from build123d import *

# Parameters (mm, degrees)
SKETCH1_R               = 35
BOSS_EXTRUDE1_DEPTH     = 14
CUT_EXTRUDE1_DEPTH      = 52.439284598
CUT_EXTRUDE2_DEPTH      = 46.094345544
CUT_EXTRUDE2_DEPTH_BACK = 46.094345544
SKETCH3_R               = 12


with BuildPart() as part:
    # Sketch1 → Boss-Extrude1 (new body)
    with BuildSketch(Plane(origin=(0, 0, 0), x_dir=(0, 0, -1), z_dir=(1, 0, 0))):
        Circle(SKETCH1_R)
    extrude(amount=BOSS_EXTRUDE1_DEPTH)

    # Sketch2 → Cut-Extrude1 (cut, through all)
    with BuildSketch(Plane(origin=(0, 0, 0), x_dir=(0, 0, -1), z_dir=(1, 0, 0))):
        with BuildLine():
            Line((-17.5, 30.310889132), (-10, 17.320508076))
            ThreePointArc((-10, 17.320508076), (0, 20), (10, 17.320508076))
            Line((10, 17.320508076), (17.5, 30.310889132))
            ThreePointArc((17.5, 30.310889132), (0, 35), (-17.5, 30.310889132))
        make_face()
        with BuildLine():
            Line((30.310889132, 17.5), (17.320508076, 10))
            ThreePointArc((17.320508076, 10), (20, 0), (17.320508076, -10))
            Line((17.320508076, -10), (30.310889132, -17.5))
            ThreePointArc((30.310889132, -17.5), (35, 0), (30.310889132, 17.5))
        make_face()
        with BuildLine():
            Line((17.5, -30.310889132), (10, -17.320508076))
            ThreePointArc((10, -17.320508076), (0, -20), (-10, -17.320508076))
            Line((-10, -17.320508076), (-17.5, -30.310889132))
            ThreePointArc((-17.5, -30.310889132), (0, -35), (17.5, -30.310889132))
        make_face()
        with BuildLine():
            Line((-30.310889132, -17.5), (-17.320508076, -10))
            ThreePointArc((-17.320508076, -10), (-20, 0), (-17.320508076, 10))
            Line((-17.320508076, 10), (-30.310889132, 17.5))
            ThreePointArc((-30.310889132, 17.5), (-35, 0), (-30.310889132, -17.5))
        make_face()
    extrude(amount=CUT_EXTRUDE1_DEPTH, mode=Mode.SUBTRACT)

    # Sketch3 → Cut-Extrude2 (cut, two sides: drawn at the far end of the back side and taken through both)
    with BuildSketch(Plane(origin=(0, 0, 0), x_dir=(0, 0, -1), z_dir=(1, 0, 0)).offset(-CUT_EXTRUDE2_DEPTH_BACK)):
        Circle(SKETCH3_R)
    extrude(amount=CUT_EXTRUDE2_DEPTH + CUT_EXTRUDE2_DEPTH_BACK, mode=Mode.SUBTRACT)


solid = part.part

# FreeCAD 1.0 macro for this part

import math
import FreeCAD as App
import Part
import Sketcher
from FreeCAD import Vector
Q = App.Units.Quantity

doc = App.newDocument("Part")
body = doc.addObject("PartDesign::Body", "Body")

# Sketch on YZ plane
sketch1 = doc.addObject("Sketcher::SketchObject", "Sketch")
body.addObject(sketch1)
sketch1.AttachmentSupport = (doc.YZ_Plane, [""])
sketch1.MapMode = "FlatFace"
sketch1.addGeometry(Part.Circle(Vector(0, 0, 0), Vector(0, 0, 1), 35), False)
sketch1.addConstraint(Sketcher.Constraint("Coincident", 0, 3, -1, 1))
sketch1.addConstraint(Sketcher.Constraint("Diameter", 0, 70.0))
pad1 = doc.addObject("PartDesign::Pad", "Pad")
body.addObject(pad1)
pad1.Profile = sketch1
pad1.Length = 14

# Sketch on YZ plane
sketch2 = doc.addObject("Sketcher::SketchObject", "Sketch001")
body.addObject(sketch2)
sketch2.AttachmentSupport = (doc.YZ_Plane, [""])
sketch2.MapMode = "FlatFace"
sketch2.addGeometry(Part.LineSegment(Vector(30.310889, 17.5, 0), Vector(17.320508, 10, 0)), False)
sketch2.addGeometry(Part.ArcOfCircle(Part.Circle(Vector(0, 0, 0), Vector(0, 0, 1), 20), math.radians(-30), math.radians(30)), False)
sketch2.addGeometry(Part.LineSegment(Vector(17.320508, -10, 0), Vector(30.310889, -17.5, 0)), False)
sketch2.addGeometry(Part.ArcOfCircle(Part.Circle(Vector(0, 0, 0), Vector(0, 0, 1), 35), math.radians(-30), math.radians(30)), False)
sketch2.addGeometry(Part.LineSegment(Vector(17.5, -30.310889, 0), Vector(10, -17.320508, 0)), False)
sketch2.addGeometry(Part.ArcOfCircle(Part.Circle(Vector(0, 0, 0), Vector(0, 0, 1), 20), math.radians(-120), math.radians(-60)), False)
sketch2.addGeometry(Part.LineSegment(Vector(-10, -17.320508, 0), Vector(-17.5, -30.310889, 0)), False)
sketch2.addGeometry(Part.ArcOfCircle(Part.Circle(Vector(0, 0, 0), Vector(0, 0, 1), 35), math.radians(-120), math.radians(-60)), False)
sketch2.addGeometry(Part.LineSegment(Vector(-30.310889, -17.5, 0), Vector(-17.320508, -10, 0)), False)
sketch2.addGeometry(Part.ArcOfCircle(Part.Circle(Vector(0, 0, 0), Vector(0, 0, 1), 20), math.radians(150), math.radians(210)), False)
sketch2.addGeometry(Part.LineSegment(Vector(-17.320508, 10, 0), Vector(-30.310889, 17.5, 0)), False)
sketch2.addGeometry(Part.ArcOfCircle(Part.Circle(Vector(0, 0, 0), Vector(0, 0, 1), 35), math.radians(150), math.radians(210)), False)
sketch2.addGeometry(Part.LineSegment(Vector(-17.5, 30.310889, 0), Vector(-10, 17.320508, 0)), False)
sketch2.addGeometry(Part.ArcOfCircle(Part.Circle(Vector(0, 0, 0), Vector(0, 0, 1), 20), math.radians(60), math.radians(120)), False)
sketch2.addGeometry(Part.LineSegment(Vector(10, 17.320508, 0), Vector(17.5, 30.310889, 0)), False)
sketch2.addGeometry(Part.ArcOfCircle(Part.Circle(Vector(0, 0, 0), Vector(0, 0, 1), 35), math.radians(60), math.radians(120)), False)
sketch2.addConstraint(Sketcher.Constraint("Coincident", 0, 2, 1, 2))
sketch2.addConstraint(Sketcher.Constraint("Coincident", 1, 1, 2, 1))
sketch2.addConstraint(Sketcher.Constraint("Coincident", 2, 2, 3, 1))
sketch2.addConstraint(Sketcher.Constraint("Coincident", 3, 2, 0, 1))
sketch2.addConstraint(Sketcher.Constraint("Coincident", 4, 2, 5, 2))
sketch2.addConstraint(Sketcher.Constraint("Coincident", 5, 1, 6, 1))
sketch2.addConstraint(Sketcher.Constraint("Coincident", 6, 2, 7, 1))
sketch2.addConstraint(Sketcher.Constraint("Coincident", 7, 2, 4, 1))
sketch2.addConstraint(Sketcher.Constraint("Coincident", 8, 2, 9, 2))
sketch2.addConstraint(Sketcher.Constraint("Coincident", 9, 1, 10, 1))
sketch2.addConstraint(Sketcher.Constraint("Coincident", 10, 2, 11, 1))
sketch2.addConstraint(Sketcher.Constraint("Coincident", 11, 2, 8, 1))
sketch2.addConstraint(Sketcher.Constraint("Coincident", 12, 2, 13, 2))
sketch2.addConstraint(Sketcher.Constraint("Coincident", 13, 1, 14, 1))
sketch2.addConstraint(Sketcher.Constraint("Coincident", 14, 2, 15, 1))
sketch2.addConstraint(Sketcher.Constraint("Coincident", 15, 2, 12, 1))
sketch2.addConstraint(Sketcher.Constraint("Coincident", 1, 3, -1, 1))
sketch2.addConstraint(Sketcher.Constraint("Coincident", 3, 3, -1, 1))
sketch2.addConstraint(Sketcher.Constraint("Coincident", 5, 3, -1, 1))
sketch2.addConstraint(Sketcher.Constraint("Coincident", 7, 3, -1, 1))
sketch2.addConstraint(Sketcher.Constraint("Coincident", 9, 3, -1, 1))
sketch2.addConstraint(Sketcher.Constraint("Coincident", 11, 3, -1, 1))
sketch2.addConstraint(Sketcher.Constraint("Coincident", 13, 3, -1, 1))
sketch2.addConstraint(Sketcher.Constraint("Coincident", 15, 3, -1, 1))
sketch2.addConstraint(Sketcher.Constraint("Equal", 1, 5))
sketch2.addConstraint(Sketcher.Constraint("Equal", 3, 7))
sketch2.addConstraint(Sketcher.Constraint("Equal", 5, 9))
sketch2.addConstraint(Sketcher.Constraint("Equal", 7, 11))
sketch2.addConstraint(Sketcher.Constraint("Equal", 9, 13))
sketch2.addConstraint(Sketcher.Constraint("Equal", 11, 15))
sketch2.addConstraint(Sketcher.Constraint("Perpendicular", 0, 4))
sketch2.addConstraint(Sketcher.Constraint("Perpendicular", 2, 6))
sketch2.addConstraint(Sketcher.Constraint("Perpendicular", 4, 8))
sketch2.addConstraint(Sketcher.Constraint("Perpendicular", 6, 10))
sketch2.addConstraint(Sketcher.Constraint("Perpendicular", 8, 12))
sketch2.addConstraint(Sketcher.Constraint("Perpendicular", 10, 14))
sketch2.addConstraint(Sketcher.Constraint("Horizontal", 4, 2, 5, 1))
sketch2.addConstraint(Sketcher.Constraint("Horizontal", 6, 2, 7, 2))
sketch2.addConstraint(Sketcher.Constraint("Horizontal", 1, 1, 8, 2))
sketch2.addConstraint(Sketcher.Constraint("Horizontal", 0, 2, 9, 1))
sketch2.addConstraint(Sketcher.Constraint("Horizontal", 12, 2, 13, 1))
sketch2.addConstraint(Sketcher.Constraint("Vertical", 0, 2, 1, 1))
sketch2.addConstraint(Sketcher.Constraint("Vertical", 5, 1, 12, 2))
sketch2.addConstraint(Sketcher.Constraint("Radius", 1, 20.0))
sketch2.addConstraint(Sketcher.Constraint("Radius", 3, 35.0))
sketch2.addConstraint(Sketcher.Constraint("Angle", 0, Q("-150 deg")))
sketch2.addConstraint(Sketcher.Constraint("DistanceY", -1, 1, 0, 2, 10.0))
sketch2.addConstraint(Sketcher.Constraint("DistanceX", -1, 1, 4, 2, 10.0))
pocket1 = doc.addObject("PartDesign::Pocket", "Pocket")
body.addObject(pocket1)
pocket1.Profile = sketch2
pocket1.Type = "ThroughAll"
pocket1.Reversed = True

# Sketch on YZ plane
sketch3 = doc.addObject("Sketcher::SketchObject", "Sketch002")
body.addObject(sketch3)
sketch3.AttachmentSupport = (doc.YZ_Plane, [""])
sketch3.MapMode = "FlatFace"
sketch3.addGeometry(Part.Circle(Vector(0, 0, 0), Vector(0, 0, 1), 12), False)
sketch3.addConstraint(Sketcher.Constraint("Coincident", 0, 3, -1, 1))
sketch3.addConstraint(Sketcher.Constraint("Diameter", 0, 24.0))
pocket2 = doc.addObject("PartDesign::Pocket", "Pocket001")
body.addObject(pocket2)
pocket2.Profile = sketch3
pocket2.Type = "ThroughAll"
pocket2.Midplane = True

doc.recompute()
